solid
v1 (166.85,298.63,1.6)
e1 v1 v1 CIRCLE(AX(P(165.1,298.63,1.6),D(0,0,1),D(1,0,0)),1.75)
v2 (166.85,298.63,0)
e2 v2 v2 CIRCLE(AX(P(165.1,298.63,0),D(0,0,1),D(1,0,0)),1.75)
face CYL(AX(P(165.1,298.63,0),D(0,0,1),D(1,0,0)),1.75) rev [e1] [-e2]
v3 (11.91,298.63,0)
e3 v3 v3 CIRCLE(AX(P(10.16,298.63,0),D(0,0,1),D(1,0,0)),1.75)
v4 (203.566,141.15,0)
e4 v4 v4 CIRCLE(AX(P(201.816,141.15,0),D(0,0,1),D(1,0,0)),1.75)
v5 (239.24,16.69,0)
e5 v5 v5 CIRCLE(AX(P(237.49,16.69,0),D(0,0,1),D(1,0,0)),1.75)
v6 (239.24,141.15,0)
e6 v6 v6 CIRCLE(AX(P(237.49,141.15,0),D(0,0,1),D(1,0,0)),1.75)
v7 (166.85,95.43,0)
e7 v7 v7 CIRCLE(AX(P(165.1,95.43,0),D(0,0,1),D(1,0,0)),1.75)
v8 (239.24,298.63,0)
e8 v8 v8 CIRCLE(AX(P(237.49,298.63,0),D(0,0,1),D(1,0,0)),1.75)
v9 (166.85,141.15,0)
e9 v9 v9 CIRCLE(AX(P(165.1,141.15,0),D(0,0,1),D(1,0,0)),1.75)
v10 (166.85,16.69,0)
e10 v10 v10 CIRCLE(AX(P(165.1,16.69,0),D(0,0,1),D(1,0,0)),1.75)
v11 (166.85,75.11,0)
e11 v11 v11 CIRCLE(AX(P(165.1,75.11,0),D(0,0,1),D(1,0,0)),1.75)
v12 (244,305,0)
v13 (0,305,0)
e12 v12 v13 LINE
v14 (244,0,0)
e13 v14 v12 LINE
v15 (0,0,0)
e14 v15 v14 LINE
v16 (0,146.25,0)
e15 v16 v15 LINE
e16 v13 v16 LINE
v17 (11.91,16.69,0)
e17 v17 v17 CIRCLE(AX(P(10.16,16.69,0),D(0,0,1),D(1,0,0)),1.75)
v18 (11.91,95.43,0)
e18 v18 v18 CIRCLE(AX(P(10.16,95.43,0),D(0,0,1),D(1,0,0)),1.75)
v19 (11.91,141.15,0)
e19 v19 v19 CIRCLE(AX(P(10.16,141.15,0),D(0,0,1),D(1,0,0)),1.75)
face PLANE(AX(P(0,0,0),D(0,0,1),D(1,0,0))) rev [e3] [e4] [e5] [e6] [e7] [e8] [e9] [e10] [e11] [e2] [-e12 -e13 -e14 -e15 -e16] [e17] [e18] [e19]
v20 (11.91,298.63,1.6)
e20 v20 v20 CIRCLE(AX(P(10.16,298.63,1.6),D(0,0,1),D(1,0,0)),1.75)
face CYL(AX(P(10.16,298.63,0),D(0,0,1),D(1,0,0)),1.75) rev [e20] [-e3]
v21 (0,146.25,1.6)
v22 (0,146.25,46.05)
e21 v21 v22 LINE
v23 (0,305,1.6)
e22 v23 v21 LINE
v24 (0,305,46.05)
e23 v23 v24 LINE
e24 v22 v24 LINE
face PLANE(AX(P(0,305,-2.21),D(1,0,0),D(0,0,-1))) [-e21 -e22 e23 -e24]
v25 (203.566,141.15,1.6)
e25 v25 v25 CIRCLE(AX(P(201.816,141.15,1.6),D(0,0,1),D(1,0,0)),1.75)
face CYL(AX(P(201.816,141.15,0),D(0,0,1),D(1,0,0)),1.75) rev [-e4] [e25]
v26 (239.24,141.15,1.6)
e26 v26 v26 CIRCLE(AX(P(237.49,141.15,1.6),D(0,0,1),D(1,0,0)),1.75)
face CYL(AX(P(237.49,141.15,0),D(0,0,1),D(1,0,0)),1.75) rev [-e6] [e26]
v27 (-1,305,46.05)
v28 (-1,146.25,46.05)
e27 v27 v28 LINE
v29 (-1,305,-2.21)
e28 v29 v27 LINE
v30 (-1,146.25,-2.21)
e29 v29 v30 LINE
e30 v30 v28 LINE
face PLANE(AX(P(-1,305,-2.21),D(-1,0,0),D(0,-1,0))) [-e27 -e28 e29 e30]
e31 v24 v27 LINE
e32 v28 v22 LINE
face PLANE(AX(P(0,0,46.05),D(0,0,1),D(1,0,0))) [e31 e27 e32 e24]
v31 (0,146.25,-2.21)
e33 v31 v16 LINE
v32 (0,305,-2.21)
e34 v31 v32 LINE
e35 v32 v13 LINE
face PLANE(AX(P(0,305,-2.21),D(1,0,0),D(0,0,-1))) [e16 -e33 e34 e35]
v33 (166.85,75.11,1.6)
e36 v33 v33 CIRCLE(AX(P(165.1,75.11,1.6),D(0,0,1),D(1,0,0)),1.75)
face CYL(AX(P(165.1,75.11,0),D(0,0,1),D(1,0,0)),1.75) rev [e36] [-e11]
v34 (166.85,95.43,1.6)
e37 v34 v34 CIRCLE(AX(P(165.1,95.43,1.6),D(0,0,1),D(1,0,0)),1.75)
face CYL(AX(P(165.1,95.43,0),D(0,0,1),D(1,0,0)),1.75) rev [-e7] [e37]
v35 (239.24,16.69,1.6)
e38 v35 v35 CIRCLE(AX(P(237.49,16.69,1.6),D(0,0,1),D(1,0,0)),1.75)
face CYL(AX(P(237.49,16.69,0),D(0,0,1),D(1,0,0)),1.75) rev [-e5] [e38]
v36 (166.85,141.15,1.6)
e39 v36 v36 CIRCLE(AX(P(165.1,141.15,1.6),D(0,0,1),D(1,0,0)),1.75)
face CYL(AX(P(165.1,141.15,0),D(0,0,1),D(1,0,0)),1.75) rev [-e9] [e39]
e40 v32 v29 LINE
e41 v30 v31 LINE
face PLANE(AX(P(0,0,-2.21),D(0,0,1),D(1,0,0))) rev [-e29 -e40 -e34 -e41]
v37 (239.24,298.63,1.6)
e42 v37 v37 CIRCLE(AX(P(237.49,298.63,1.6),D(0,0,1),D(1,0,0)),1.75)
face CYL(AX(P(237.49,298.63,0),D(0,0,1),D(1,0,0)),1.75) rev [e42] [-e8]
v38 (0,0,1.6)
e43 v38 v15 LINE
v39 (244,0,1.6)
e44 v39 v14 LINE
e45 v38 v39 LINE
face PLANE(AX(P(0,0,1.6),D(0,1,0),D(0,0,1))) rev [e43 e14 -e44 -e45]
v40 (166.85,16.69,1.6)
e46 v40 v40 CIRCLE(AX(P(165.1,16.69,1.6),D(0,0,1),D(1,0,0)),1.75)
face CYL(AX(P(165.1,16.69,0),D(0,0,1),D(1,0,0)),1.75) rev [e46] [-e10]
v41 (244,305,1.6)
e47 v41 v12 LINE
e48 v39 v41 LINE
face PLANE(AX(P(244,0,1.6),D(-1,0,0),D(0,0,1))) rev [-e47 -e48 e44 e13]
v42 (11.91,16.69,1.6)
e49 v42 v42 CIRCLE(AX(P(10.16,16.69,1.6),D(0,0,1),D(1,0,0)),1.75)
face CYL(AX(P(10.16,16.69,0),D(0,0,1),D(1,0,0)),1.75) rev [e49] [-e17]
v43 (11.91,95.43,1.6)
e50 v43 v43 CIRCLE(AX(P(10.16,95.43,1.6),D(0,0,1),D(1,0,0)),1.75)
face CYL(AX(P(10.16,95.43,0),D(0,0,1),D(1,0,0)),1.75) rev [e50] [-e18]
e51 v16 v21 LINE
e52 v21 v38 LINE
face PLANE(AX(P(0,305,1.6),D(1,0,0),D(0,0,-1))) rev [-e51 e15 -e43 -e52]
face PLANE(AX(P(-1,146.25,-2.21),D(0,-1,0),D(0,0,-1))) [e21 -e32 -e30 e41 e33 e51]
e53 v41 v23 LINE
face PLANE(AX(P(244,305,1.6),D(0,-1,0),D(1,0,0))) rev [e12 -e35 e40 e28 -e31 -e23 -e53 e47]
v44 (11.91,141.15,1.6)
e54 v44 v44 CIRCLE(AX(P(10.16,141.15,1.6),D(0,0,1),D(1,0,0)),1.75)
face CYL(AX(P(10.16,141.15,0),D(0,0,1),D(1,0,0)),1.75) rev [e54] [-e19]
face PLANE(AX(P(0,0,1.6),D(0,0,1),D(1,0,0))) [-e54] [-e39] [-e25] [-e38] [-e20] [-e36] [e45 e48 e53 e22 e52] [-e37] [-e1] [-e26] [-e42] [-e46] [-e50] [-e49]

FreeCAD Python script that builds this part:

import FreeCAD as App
import Part
import Sketcher
Q = App.Units.Quantity

doc = App.newDocument("Part")
body = doc.addObject("PartDesign::Body", "Body")

# Sketch on XY plane
sketch1 = body.newObject("Sketcher::SketchObject", "Sketch")
sketch1.AttachmentSupport = (doc.getObject("XY_Plane"), [""])
sketch1.MapMode = "FlatFace"
sketch1.addGeometry(Part.LineSegment(App.Vector(0, 305, 0), App.Vector(0, 0, 0)), False)
sketch1.addGeometry(Part.LineSegment(App.Vector(0, 0, 0), App.Vector(244, 0, 0)), False)
sketch1.addGeometry(Part.LineSegment(App.Vector(244, 0, 0), App.Vector(244, 305, 0)), False)
sketch1.addGeometry(Part.LineSegment(App.Vector(244, 305, 0), App.Vector(0, 305, 0)), False)
sketch1.addConstraint(Sketcher.Constraint("Coincident", 0, 2, 1, 1))
sketch1.addConstraint(Sketcher.Constraint("Coincident", 1, 2, 2, 1))
sketch1.addConstraint(Sketcher.Constraint("Coincident", 2, 2, 3, 1))
sketch1.addConstraint(Sketcher.Constraint("Coincident", 3, 2, 0, 1))
sketch1.addConstraint(Sketcher.Constraint("Vertical", 0))
sketch1.addConstraint(Sketcher.Constraint("Horizontal", 1))
sketch1.addConstraint(Sketcher.Constraint("Vertical", 2))
sketch1.addConstraint(Sketcher.Constraint("Horizontal", 3))
sketch1.addConstraint(Sketcher.Constraint("Coincident", 0, 2, -1, 1))
sketch1.addConstraint(Sketcher.Constraint("DistanceX", 1, 1, 1, 2, Q("244 mm")))
sketch1.addConstraint(Sketcher.Constraint("DistanceY", 0, 2, 0, 1, Q("305 mm")))
pad1 = body.newObject("PartDesign::Pad", "Pad")
pad1.Profile = sketch1
pad1.Length = 1.6

# Sketch on XY plane
sketch2 = body.newObject("Sketcher::SketchObject", "Sketch001")
sketch2.AttachmentSupport = (doc.getObject("XY_Plane"), [""])
sketch2.MapMode = "FlatFace"
sketch2.AttachmentOffset = App.Placement(App.Vector(0, 0, 1.6), App.Rotation())
sketch2.addGeometry(Part.Circle(App.Vector(10.2, 16.7, 0), App.Vector(0, 0, 1), 1.8), False)
sketch2.addGeometry(Part.Circle(App.Vector(165.1, 16.7, 0), App.Vector(0, 0, 1), 1.8), False)
sketch2.addGeometry(Part.Circle(App.Vector(237.5, 16.7, 0), App.Vector(0, 0, 1), 1.8), False)
sketch2.addGeometry(Part.Circle(App.Vector(165.1, 75.1, 0), App.Vector(0, 0, 1), 1.8), False)
sketch2.addGeometry(Part.Circle(App.Vector(10.2, 95.4, 0), App.Vector(0, 0, 1), 1.8), False)
sketch2.addGeometry(Part.Circle(App.Vector(165.1, 95.4, 0), App.Vector(0, 0, 1), 1.8), False)
sketch2.addGeometry(Part.Circle(App.Vector(10.2, 141.2, 0), App.Vector(0, 0, 1), 1.8), False)
sketch2.addGeometry(Part.Circle(App.Vector(165.1, 141.2, 0), App.Vector(0, 0, 1), 1.8), False)
sketch2.addGeometry(Part.Circle(App.Vector(237.5, 141.2, 0), App.Vector(0, 0, 1), 1.8), False)
sketch2.addGeometry(Part.Circle(App.Vector(10.2, 298.6, 0), App.Vector(0, 0, 1), 1.8), False)
sketch2.addGeometry(Part.Circle(App.Vector(165.1, 298.6, 0), App.Vector(0, 0, 1), 1.8), False)
sketch2.addGeometry(Part.Circle(App.Vector(237.5, 298.6, 0), App.Vector(0, 0, 1), 1.8), False)
sketch2.addGeometry(Part.Circle(App.Vector(201.8, 141.2, 0), App.Vector(0, 0, 1), 1.8), False)
sketch2.addConstraint(Sketcher.Constraint("Equal", 0, 1))
sketch2.addConstraint(Sketcher.Constraint("Equal", 1, 2))
sketch2.addConstraint(Sketcher.Constraint("Equal", 2, 3))
sketch2.addConstraint(Sketcher.Constraint("Equal", 3, 4))
sketch2.addConstraint(Sketcher.Constraint("Equal", 4, 5))
sketch2.addConstraint(Sketcher.Constraint("Equal", 5, 6))
sketch2.addConstraint(Sketcher.Constraint("Equal", 6, 7))
sketch2.addConstraint(Sketcher.Constraint("Equal", 7, 8))
sketch2.addConstraint(Sketcher.Constraint("Equal", 8, 9))
sketch2.addConstraint(Sketcher.Constraint("Equal", 9, 10))
sketch2.addConstraint(Sketcher.Constraint("Equal", 10, 11))
sketch2.addConstraint(Sketcher.Constraint("Equal", 11, 12))
sketch2.addConstraint(Sketcher.Constraint("Horizontal", 0, 3, 1, 3))
sketch2.addConstraint(Sketcher.Constraint("Horizontal", 1, 3, 2, 3))
sketch2.addConstraint(Sketcher.Constraint("Horizontal", 4, 3, 5, 3))
sketch2.addConstraint(Sketcher.Constraint("Horizontal", 6, 3, 7, 3))
sketch2.addConstraint(Sketcher.Constraint("Horizontal", 7, 3, 8, 3))
sketch2.addConstraint(Sketcher.Constraint("Horizontal", 9, 3, 10, 3))
sketch2.addConstraint(Sketcher.Constraint("Horizontal", 10, 3, 11, 3))
sketch2.addConstraint(Sketcher.Constraint("Horizontal", 8, 3, 12, 3))
sketch2.addConstraint(Sketcher.Constraint("Vertical", 1, 3, 3, 3))
sketch2.addConstraint(Sketcher.Constraint("Vertical", 0, 3, 4, 3))
sketch2.addConstraint(Sketcher.Constraint("Vertical", 3, 3, 5, 3))
sketch2.addConstraint(Sketcher.Constraint("Vertical", 4, 3, 6, 3))
sketch2.addConstraint(Sketcher.Constraint("Vertical", 5, 3, 7, 3))
sketch2.addConstraint(Sketcher.Constraint("Vertical", 2, 3, 8, 3))
sketch2.addConstraint(Sketcher.Constraint("Vertical", 6, 3, 9, 3))
sketch2.addConstraint(Sketcher.Constraint("Vertical", 7, 3, 10, 3))
sketch2.addConstraint(Sketcher.Constraint("Vertical", 8, 3, 11, 3))
sketch2.addConstraint(Sketcher.Constraint("Diameter", 0, Q("3.5 mm")))
sketch2.addConstraint(Sketcher.Constraint("DistanceX", -1, 1, 1, 3, Q("165.1 mm")))
sketch2.addConstraint(Sketcher.Constraint("DistanceY", 4, 3, 9, 3, Q("203.2 mm")))
sketch2.addConstraint(Sketcher.Constraint("DistanceX", -1, 1, 0, 3, Q("10.16 mm")))
sketch2.addConstraint(Sketcher.Constraint("DistanceY", -1, 1, 0, 3, Q("16.69 mm")))
sketch2.addConstraint(Sketcher.Constraint("DistanceX", -1, 1, 2, 3, Q("237.49 mm")))
sketch2.addConstraint(Sketcher.Constraint("DistanceY", -1, 1, 3, 3, Q("75.11 mm")))
sketch2.addConstraint(Sketcher.Constraint("DistanceY", -1, 1, 4, 3, Q("95.43 mm")))
sketch2.addConstraint(Sketcher.Constraint("DistanceY", -1, 1, 6, 3, Q("141.15 mm")))
sketch2.addConstraint(Sketcher.Constraint("DistanceX", -1, 1, 12, 3, Q("201.816 mm")))
pocket1 = body.newObject("PartDesign::Pocket", "Pocket")
pocket1.Profile = sketch2
pocket1.Type = "ThroughAll"

# Sketch on XY plane
sketch3 = body.newObject("Sketcher::SketchObject", "Sketch002")
sketch3.AttachmentSupport = (doc.getObject("XY_Plane"), [""])
sketch3.MapMode = "FlatFace"
sketch3.AttachmentOffset = App.Placement(App.Vector(0, 0, 1.6), App.Rotation())
sketch3.addGeometry(Part.LineSegment(App.Vector(-1, 305, 0), App.Vector(-1, 146.2, 0)), False)
sketch3.addGeometry(Part.LineSegment(App.Vector(-1, 146.2, 0), App.Vector(0, 146.2, 0)), False)
sketch3.addGeometry(Part.LineSegment(App.Vector(0, 146.2, 0), App.Vector(0, 305, 0)), False)
sketch3.addGeometry(Part.LineSegment(App.Vector(0, 305, 0), App.Vector(-1, 305, 0)), False)
sketch3.addConstraint(Sketcher.Constraint("Coincident", 0, 2, 1, 1))
sketch3.addConstraint(Sketcher.Constraint("Coincident", 1, 2, 2, 1))
sketch3.addConstraint(Sketcher.Constraint("Coincident", 2, 2, 3, 1))
sketch3.addConstraint(Sketcher.Constraint("Coincident", 3, 2, 0, 1))
sketch3.addConstraint(Sketcher.Constraint("Vertical", 0))
sketch3.addConstraint(Sketcher.Constraint("Horizontal", 1))
sketch3.addConstraint(Sketcher.Constraint("Vertical", 2))
sketch3.addConstraint(Sketcher.Constraint("Horizontal", 3))
sketch3.addConstraint(Sketcher.Constraint("PointOnObject", 1, 2, -2))
sketch3.addConstraint(Sketcher.Constraint("DistanceX", 1, 1, 1, 2, Q("1 mm")))
sketch3.addConstraint(Sketcher.Constraint("DistanceY", -1, 1, 2, 2, Q("305 mm")))
sketch3.addConstraint(Sketcher.Constraint("DistanceY", 0, 2, 0, 1, Q("158.75 mm")))
pad2 = body.newObject("PartDesign::Pad", "Pad001")
pad2.Profile = sketch3
pad2.Type = "TwoLengths"
pad2.Length = 44.45
pad2.Length2 = 3.81

doc.recompute()
